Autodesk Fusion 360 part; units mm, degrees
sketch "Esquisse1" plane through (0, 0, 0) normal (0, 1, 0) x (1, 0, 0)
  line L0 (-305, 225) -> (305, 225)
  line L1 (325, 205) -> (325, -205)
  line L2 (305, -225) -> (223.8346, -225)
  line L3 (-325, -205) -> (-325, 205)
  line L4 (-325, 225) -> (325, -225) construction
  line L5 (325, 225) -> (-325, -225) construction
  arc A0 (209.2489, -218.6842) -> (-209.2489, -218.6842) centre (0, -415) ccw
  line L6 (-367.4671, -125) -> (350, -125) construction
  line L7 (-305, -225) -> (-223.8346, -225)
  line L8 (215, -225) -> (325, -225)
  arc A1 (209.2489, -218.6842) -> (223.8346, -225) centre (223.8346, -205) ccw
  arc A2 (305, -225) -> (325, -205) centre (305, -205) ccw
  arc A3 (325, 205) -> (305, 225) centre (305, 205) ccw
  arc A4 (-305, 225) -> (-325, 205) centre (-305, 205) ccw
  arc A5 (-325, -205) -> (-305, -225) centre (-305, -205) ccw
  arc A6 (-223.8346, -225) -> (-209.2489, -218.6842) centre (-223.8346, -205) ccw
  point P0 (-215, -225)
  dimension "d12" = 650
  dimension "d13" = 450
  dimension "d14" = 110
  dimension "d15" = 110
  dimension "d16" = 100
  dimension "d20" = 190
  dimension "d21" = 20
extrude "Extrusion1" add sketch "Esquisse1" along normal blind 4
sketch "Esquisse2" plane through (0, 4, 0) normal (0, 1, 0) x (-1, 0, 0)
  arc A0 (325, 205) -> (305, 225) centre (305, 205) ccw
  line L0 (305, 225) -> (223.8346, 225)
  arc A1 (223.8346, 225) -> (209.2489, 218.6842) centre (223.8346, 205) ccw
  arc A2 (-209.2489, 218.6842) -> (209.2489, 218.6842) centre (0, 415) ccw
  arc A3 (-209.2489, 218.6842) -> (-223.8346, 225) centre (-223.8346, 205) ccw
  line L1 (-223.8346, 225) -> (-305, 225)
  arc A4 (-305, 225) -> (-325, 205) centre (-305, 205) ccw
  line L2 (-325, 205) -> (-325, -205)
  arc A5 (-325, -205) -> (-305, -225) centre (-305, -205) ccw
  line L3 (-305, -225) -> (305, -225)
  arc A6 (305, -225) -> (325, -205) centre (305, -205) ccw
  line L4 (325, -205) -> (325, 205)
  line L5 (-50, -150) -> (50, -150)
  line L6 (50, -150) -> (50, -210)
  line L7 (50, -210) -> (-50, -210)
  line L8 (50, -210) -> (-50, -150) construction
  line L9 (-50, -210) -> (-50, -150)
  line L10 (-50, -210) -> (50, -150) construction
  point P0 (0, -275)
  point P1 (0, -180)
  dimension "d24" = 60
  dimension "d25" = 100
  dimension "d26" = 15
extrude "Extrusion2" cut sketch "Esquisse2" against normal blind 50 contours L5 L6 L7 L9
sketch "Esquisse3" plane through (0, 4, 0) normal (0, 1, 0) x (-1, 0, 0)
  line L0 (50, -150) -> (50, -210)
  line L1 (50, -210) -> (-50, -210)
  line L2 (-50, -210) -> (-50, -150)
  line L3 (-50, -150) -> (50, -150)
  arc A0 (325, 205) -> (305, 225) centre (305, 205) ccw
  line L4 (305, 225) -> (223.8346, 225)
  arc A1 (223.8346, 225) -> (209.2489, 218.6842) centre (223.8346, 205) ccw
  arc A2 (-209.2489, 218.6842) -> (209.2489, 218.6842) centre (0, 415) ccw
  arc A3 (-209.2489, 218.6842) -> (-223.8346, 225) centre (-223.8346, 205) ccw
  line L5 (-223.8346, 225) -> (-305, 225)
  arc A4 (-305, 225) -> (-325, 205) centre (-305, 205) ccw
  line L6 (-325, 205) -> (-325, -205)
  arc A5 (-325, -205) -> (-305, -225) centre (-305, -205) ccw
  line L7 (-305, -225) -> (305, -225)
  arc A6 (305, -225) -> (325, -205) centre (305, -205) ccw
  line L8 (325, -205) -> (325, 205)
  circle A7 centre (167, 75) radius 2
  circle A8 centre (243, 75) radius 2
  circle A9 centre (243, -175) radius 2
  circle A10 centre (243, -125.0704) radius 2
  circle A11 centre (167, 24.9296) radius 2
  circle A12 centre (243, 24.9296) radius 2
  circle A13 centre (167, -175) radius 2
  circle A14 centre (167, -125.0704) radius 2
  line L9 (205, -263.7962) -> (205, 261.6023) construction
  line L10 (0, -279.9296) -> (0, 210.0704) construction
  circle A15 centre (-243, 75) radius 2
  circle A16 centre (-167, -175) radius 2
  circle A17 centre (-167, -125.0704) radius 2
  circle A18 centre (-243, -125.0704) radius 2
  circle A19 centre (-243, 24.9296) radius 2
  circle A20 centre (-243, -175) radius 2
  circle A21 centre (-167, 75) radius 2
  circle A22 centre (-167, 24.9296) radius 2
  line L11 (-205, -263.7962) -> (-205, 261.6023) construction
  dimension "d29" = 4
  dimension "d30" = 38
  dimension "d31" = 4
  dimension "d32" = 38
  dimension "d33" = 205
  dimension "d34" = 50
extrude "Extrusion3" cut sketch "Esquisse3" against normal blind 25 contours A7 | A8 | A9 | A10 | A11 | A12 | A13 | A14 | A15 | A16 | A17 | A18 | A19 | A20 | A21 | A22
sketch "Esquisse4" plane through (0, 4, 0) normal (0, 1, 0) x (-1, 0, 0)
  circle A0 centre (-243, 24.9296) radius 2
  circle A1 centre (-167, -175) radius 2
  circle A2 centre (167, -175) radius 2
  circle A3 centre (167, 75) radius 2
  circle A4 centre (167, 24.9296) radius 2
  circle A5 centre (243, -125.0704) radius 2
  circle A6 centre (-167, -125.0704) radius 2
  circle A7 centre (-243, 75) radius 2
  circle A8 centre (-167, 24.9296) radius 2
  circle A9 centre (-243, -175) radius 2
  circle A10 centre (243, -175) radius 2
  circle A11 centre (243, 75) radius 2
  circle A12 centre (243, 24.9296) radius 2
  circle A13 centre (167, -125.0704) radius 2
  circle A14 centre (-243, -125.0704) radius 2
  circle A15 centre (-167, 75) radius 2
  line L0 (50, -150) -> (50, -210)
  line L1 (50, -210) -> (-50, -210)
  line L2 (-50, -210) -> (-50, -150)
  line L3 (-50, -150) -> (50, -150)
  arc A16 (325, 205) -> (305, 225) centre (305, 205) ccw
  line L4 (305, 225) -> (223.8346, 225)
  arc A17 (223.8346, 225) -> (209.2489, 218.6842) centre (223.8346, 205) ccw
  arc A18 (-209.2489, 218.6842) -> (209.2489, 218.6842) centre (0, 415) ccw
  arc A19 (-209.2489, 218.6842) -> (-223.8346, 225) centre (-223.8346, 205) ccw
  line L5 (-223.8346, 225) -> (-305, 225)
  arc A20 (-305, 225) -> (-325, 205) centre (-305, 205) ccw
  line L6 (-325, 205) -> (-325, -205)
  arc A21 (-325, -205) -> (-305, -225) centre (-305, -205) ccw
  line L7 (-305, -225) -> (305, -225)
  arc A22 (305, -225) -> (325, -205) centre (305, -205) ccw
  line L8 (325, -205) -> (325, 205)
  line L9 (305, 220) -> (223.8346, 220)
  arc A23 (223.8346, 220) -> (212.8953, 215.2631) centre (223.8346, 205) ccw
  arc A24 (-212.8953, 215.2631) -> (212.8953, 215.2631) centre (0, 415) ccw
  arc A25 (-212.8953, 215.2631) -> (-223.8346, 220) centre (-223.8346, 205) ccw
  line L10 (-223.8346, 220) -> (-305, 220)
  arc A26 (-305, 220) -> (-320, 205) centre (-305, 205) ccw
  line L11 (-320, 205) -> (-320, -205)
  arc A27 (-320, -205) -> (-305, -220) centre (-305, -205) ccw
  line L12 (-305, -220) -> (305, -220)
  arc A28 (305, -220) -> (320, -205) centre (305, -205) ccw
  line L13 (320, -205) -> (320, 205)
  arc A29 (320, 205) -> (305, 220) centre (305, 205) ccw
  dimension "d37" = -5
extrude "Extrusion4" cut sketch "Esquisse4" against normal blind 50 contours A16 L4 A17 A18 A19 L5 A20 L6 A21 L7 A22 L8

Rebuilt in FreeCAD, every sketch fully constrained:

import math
import FreeCAD as App
import Part
import Sketcher
from FreeCAD import Vector
Q = App.Units.Quantity

doc = App.newDocument("Part")
body = doc.addObject("PartDesign::Body", "Body")

# Sketch on XZ plane
sketch1 = doc.addObject("Sketcher::SketchObject", "Sketch")
body.addObject(sketch1)
sketch1.AttachmentSupport = (doc.XZ_Plane, [""])
sketch1.MapMode = "FlatFace"
sketch1.addGeometry([
    Part.LineSegment(Vector(305, -225, 0), Vector(-305, -225, 0)),  # 0
    Part.ArcOfCircle(Part.Circle(Vector(-305, -205, 0), Vector(0, 0, 1), 20), math.radians(180), math.radians(270)),  # 1
    Part.LineSegment(Vector(-325, -205, 0), Vector(-325, 205, 0)),  # 2
    Part.ArcOfCircle(Part.Circle(Vector(-305, 205, 0), Vector(0, 0, 1), 20), math.radians(90), math.radians(180)),  # 3
    Part.LineSegment(Vector(-305, 225, 0), Vector(-223.8346, 225, 0)),  # 4
    Part.ArcOfCircle(Part.Circle(Vector(-223.8346, 205, 0), Vector(0, 0, 1), 20), math.radians(43.173511), math.radians(90)),  # 5
    Part.ArcOfCircle(Part.Circle(Vector(0, 415, 0), Vector(0, 0, 1), 286.923327), math.radians(-136.826493), math.radians(-43.173507)),  # 6
    Part.ArcOfCircle(Part.Circle(Vector(223.8346, 205, 0), Vector(0, 0, 1), 19.999999), math.radians(90), math.radians(136.826489)),  # 7
    Part.LineSegment(Vector(223.8346, 225, 0), Vector(305, 225, 0)),  # 8
    Part.ArcOfCircle(Part.Circle(Vector(305, 205, 0), Vector(0, 0, 1), 20), math.radians(0), math.radians(90)),  # 9
    Part.LineSegment(Vector(325, 205, 0), Vector(325, -205, 0)),  # 10
    Part.ArcOfCircle(Part.Circle(Vector(305, -205, 0), Vector(0, 0, 1), 20), math.radians(-90), math.radians(0)),  # 11
], False)
sketch1.addConstraint([
    Sketcher.Constraint("Tangent", 0, 2, 1, 2),
    Sketcher.Constraint("Tangent", 1, 1, 2, 1),
    Sketcher.Constraint("Tangent", 2, 2, 3, 2),
    Sketcher.Constraint("Tangent", 3, 1, 4, 1),
    Sketcher.Constraint("Tangent", 4, 2, 5, 2),
    Sketcher.Constraint("Tangent", 5, 1, 6, 1),
    Sketcher.Constraint("Tangent", 6, 2, 7, 2),
    Sketcher.Constraint("Tangent", 7, 1, 8, 1),
    Sketcher.Constraint("Tangent", 8, 2, 9, 2),
    Sketcher.Constraint("Tangent", 9, 1, 10, 1),
    Sketcher.Constraint("Tangent", 10, 2, 11, 2),
    Sketcher.Constraint("Tangent", 11, 1, 0, 1),
    Sketcher.Constraint("Horizontal", 0),
    Sketcher.Constraint("Vertical", 2),
    Sketcher.Constraint("Horizontal", 4),
    Sketcher.Constraint("Horizontal", 8),
    Sketcher.Constraint("Vertical", 10),
    Sketcher.Constraint("Equal", 1, 3),
    Sketcher.Constraint("Equal", 3, 5),
    Sketcher.Constraint("Equal", 5, 7),
    Sketcher.Constraint("Equal", 7, 9),
    Sketcher.Constraint("Equal", 9, 11),
    Sketcher.Constraint("Symmetric", 1, 3, 9, 3, -1, 1),
    Sketcher.Constraint("Symmetric", 5, 3, 7, 3, -2),
    Sketcher.Constraint("Radius", 1, Q("20 mm")),
    Sketcher.Constraint("DistanceY", 3, 1, 6, 3, Q("190 mm")),
    Sketcher.Constraint("DistanceX", 0, 2, 0, 1, Q("610 mm")),
    Sketcher.Constraint("DistanceY", 2, 1, 2, 2, Q("410 mm")),
    Sketcher.Constraint("Radius", 6, Q("286.9233 mm")),
])
pad1 = doc.addObject("PartDesign::Pad", "Pad")
body.addObject(pad1)
pad1.Profile = sketch1
pad1.Length = 4
pad1.Reversed = True

# Sketch on XZ plane
sketch2 = doc.addObject("Sketcher::SketchObject", "Sketch001")
body.addObject(sketch2)
sketch2.AttachmentSupport = (doc.XZ_Plane, [""])
sketch2.MapMode = "FlatFace"
sketch2.AttachmentOffset = App.Placement(Vector(0, 0, -4), App.Rotation())
sketch2.addGeometry([
    Part.LineSegment(Vector(-50, -150, 0), Vector(50, -150, 0)),
    Part.LineSegment(Vector(50, -150, 0), Vector(50, -210, 0)),
    Part.LineSegment(Vector(50, -210, 0), Vector(-50, -210, 0)),
    Part.LineSegment(Vector(-50, -210, 0), Vector(-50, -150, 0)),
], False)
sketch2.addConstraint([
    Sketcher.Constraint("Coincident", 0, 2, 1, 1),
    Sketcher.Constraint("Coincident", 1, 2, 2, 1),
    Sketcher.Constraint("Coincident", 2, 2, 3, 1),
    Sketcher.Constraint("Coincident", 3, 2, 0, 1),
    Sketcher.Constraint("Horizontal", 0),
    Sketcher.Constraint("Vertical", 1),
    Sketcher.Constraint("Horizontal", 2),
    Sketcher.Constraint("Vertical", 3),
    Sketcher.Constraint("DistanceX", 0, 1, 0, 2, Q("100 mm")),
    Sketcher.Constraint("DistanceY", 1, 2, 1, 1, Q("60 mm")),
    Sketcher.Constraint("DistanceX", -1, 1, 0, 2, Q("50 mm")),
    Sketcher.Constraint("DistanceY", 0, 2, -1, 1, Q("150 mm")),
])
pocket1 = doc.addObject("PartDesign::Pocket", "Pocket")
body.addObject(pocket1)
pocket1.Profile = sketch2
pocket1.Length = 50
pocket1.Reversed = True

# Sketch on XZ plane
sketch3 = doc.addObject("Sketcher::SketchObject", "Sketch002")
body.addObject(sketch3)
sketch3.AttachmentSupport = (doc.XZ_Plane, [""])
sketch3.MapMode = "FlatFace"
sketch3.AttachmentOffset = App.Placement(Vector(0, 0, -4), App.Rotation())
sketch3.addGeometry([
    Part.Circle(Vector(-167, 75, 0), Vector(0, 0, 1), 2),  # 0
    Part.Circle(Vector(-243, 75, 0), Vector(0, 0, 1), 2),  # 1
    Part.Circle(Vector(-243, -175, 0), Vector(0, 0, 1), 2),  # 2
    Part.Circle(Vector(-243, -125.0704, 0), Vector(0, 0, 1), 2),  # 3
    Part.Circle(Vector(-167, 24.9296, 0), Vector(0, 0, 1), 2),  # 4
    Part.Circle(Vector(-243, 24.9296, 0), Vector(0, 0, 1), 2),  # 5
    Part.Circle(Vector(-167, -175, 0), Vector(0, 0, 1), 2),  # 6
    Part.Circle(Vector(-167, -125.0704, 0), Vector(0, 0, 1), 2),  # 7
    Part.Circle(Vector(243, 75, 0), Vector(0, 0, 1), 2),  # 8
    Part.Circle(Vector(167, -175, 0), Vector(0, 0, 1), 2),  # 9
    Part.Circle(Vector(167, -125.0704, 0), Vector(0, 0, 1), 2),  # 10
    Part.Circle(Vector(243, -125.0704, 0), Vector(0, 0, 1), 2),  # 11
    Part.Circle(Vector(243, 24.9296, 0), Vector(0, 0, 1), 2),  # 12
    Part.Circle(Vector(243, -175, 0), Vector(0, 0, 1), 2),  # 13
    Part.Circle(Vector(167, 75, 0), Vector(0, 0, 1), 2),  # 14
    Part.Circle(Vector(167, 24.9296, 0), Vector(0, 0, 1), 2),  # 15
], False)
sketch3.addConstraint([
    Sketcher.Constraint("Equal", 0, 1),
    Sketcher.Constraint("Equal", 1, 2),
    Sketcher.Constraint("Equal", 2, 3),
    Sketcher.Constraint("Equal", 3, 4),
    Sketcher.Constraint("Equal", 4, 5),
    Sketcher.Constraint("Equal", 5, 6),
    Sketcher.Constraint("Equal", 6, 7),
    Sketcher.Constraint("Equal", 7, 8),
    Sketcher.Constraint("Equal", 8, 9),
    Sketcher.Constraint("Equal", 9, 10),
    Sketcher.Constraint("Equal", 10, 11),
    Sketcher.Constraint("Equal", 11, 12),
    Sketcher.Constraint("Equal", 12, 13),
    Sketcher.Constraint("Equal", 13, 14),
    Sketcher.Constraint("Equal", 14, 15),
    Sketcher.Constraint("Symmetric", 1, 3, 8, 3, -2),
    Sketcher.Constraint("Symmetric", 6, 3, 9, 3, -2),
    Sketcher.Constraint("Symmetric", 7, 3, 10, 3, -2),
    Sketcher.Constraint("Symmetric", 3, 3, 11, 3, -2),
    Sketcher.Constraint("Symmetric", 5, 3, 12, 3, -2),
    Sketcher.Constraint("Symmetric", 2, 3, 13, 3, -2),
    Sketcher.Constraint("Symmetric", 0, 3, 14, 3, -2),
    Sketcher.Constraint("Symmetric", 4, 3, 15, 3, -2),
    Sketcher.Constraint("Horizontal", 0, 3, 1, 3),
    Sketcher.Constraint("Horizontal", 4, 3, 5, 3),
    Sketcher.Constraint("Horizontal", 2, 3, 6, 3),
    Sketcher.Constraint("Horizontal", 3, 3, 7, 3),
    Sketcher.Constraint("Vertical", 1, 3, 2, 3),
    Sketcher.Constraint("Vertical", 2, 3, 3, 3),
    Sketcher.Constraint("Vertical", 0, 3, 4, 3),
    Sketcher.Constraint("Vertical", 3, 3, 5, 3),
    Sketcher.Constraint("Vertical", 4, 3, 6, 3),
    Sketcher.Constraint("Vertical", 6, 3, 7, 3),
    Sketcher.Constraint("Diameter", 0, Q("4 mm")),
    Sketcher.Constraint("DistanceX", 0, 3, -1, 1, Q("167 mm")),
    Sketcher.Constraint("DistanceY", -1, 1, 0, 3, Q("75 mm")),
    Sketcher.Constraint("DistanceX", 1, 3, -1, 1, Q("243 mm")),
    Sketcher.Constraint("DistanceY", 2, 3, -1, 1, Q("175 mm")),
    Sketcher.Constraint("DistanceY", 3, 3, 4, 3, Q("150 mm")),
    Sketcher.Constraint("DistanceY", 3, 3, -1, 1, Q("125.0704 mm")),
])
pocket2 = doc.addObject("PartDesign::Pocket", "Pocket001")
body.addObject(pocket2)
pocket2.Profile = sketch3
pocket2.Length = 25
pocket2.Reversed = True

# Sketch on XZ plane
sketch4 = doc.addObject("Sketcher::SketchObject", "Sketch003")
body.addObject(sketch4)
sketch4.AttachmentSupport = (doc.XZ_Plane, [""])
sketch4.MapMode = "FlatFace"
sketch4.AttachmentOffset = App.Placement(Vector(0, 0, -4), App.Rotation())
sketch4.addGeometry([
    Part.LineSegment(Vector(-325, -205, 0), Vector(-325, 205, 0)),  # 0
    Part.ArcOfCircle(Part.Circle(Vector(-305, 205, 0), Vector(0, 0, 1), 20), math.radians(90), math.radians(180)),  # 1
    Part.LineSegment(Vector(-305, 225, 0), Vector(-223.8346, 225, 0)),  # 2
    Part.ArcOfCircle(Part.Circle(Vector(-223.8346, 205, 0), Vector(0, 0, 1), 20), math.radians(43.173511), math.radians(90)),  # 3
    Part.ArcOfCircle(Part.Circle(Vector(0, 415, 0), Vector(0, 0, 1), 286.923327), math.radians(-136.826493), math.radians(-43.173507)),  # 4
    Part.ArcOfCircle(Part.Circle(Vector(223.8346, 205, 0), Vector(0, 0, 1), 19.999999), math.radians(90), math.radians(136.826489)),  # 5
    Part.LineSegment(Vector(223.8346, 225, 0), Vector(305, 225, 0)),  # 6
    Part.ArcOfCircle(Part.Circle(Vector(305, 205, 0), Vector(0, 0, 1), 20), math.radians(0), math.radians(90)),  # 7
    Part.LineSegment(Vector(325, 205, 0), Vector(325, -205, 0)),  # 8
    Part.ArcOfCircle(Part.Circle(Vector(305, -205, 0), Vector(0, 0, 1), 20), math.radians(-90), math.radians(0)),  # 9
    Part.LineSegment(Vector(305, -225, 0), Vector(-305, -225, 0)),  # 10
    Part.ArcOfCircle(Part.Circle(Vector(-305, -205, 0), Vector(0, 0, 1), 20), math.radians(180), math.radians(270)),  # 11
    Part.LineSegment(Vector(-223.8346, 220, 0), Vector(-305, 220, 0)),  # 12
    Part.ArcOfCircle(Part.Circle(Vector(-305, 205, 0), Vector(0, 0, 1), 15), math.radians(90), math.radians(180)),  # 13
    Part.LineSegment(Vector(-320, 205, 0), Vector(-320, -205, 0)),  # 14
    Part.ArcOfCircle(Part.Circle(Vector(-305, -205, 0), Vector(0, 0, 1), 15), math.radians(180), math.radians(270)),  # 15
    Part.LineSegment(Vector(-305, -220, 0), Vector(305, -220, 0)),  # 16
    Part.ArcOfCircle(Part.Circle(Vector(305, -205, 0), Vector(0, 0, 1), 15), math.radians(-90), math.radians(0)),  # 17
    Part.LineSegment(Vector(320, -205, 0), Vector(320, 205, 0)),  # 18
    Part.ArcOfCircle(Part.Circle(Vector(305, 205, 0), Vector(0, 0, 1), 15), math.radians(0), math.radians(90)),  # 19
    Part.LineSegment(Vector(305, 220, 0), Vector(223.8346, 220, 0)),  # 20
    Part.ArcOfCircle(Part.Circle(Vector(223.8346, 205, 0), Vector(0, 0, 1), 14.999984), math.radians(90), math.radians(136.826693)),  # 21
    Part.ArcOfCircle(Part.Circle(Vector(0, 415, 0), Vector(0, 0, 1), 291.923343), math.radians(-136.826482), math.radians(-43.173518)),  # 22
    Part.ArcOfCircle(Part.Circle(Vector(-223.8346, 205, 0), Vector(0, 0, 1), 15), math.radians(43.173307), math.radians(90)),  # 23
], False)
sketch4.addConstraint([
    Sketcher.Constraint("Tangent", 0, 2, 1, 2),
    Sketcher.Constraint("Tangent", 1, 1, 2, 1),
    Sketcher.Constraint("Tangent", 2, 2, 3, 2),
    Sketcher.Constraint("Tangent", 3, 1, 4, 1),
    Sketcher.Constraint("Tangent", 4, 2, 5, 2),
    Sketcher.Constraint("Tangent", 5, 1, 6, 1),
    Sketcher.Constraint("Tangent", 6, 2, 7, 2),
    Sketcher.Constraint("Tangent", 7, 1, 8, 1),
    Sketcher.Constraint("Tangent", 8, 2, 9, 2),
    Sketcher.Constraint("Tangent", 9, 1, 10, 1),
    Sketcher.Constraint("Tangent", 10, 2, 11, 2),
    Sketcher.Constraint("Tangent", 11, 1, 0, 1),
    Sketcher.Constraint("Tangent", 12, 2, 13, 1),
    Sketcher.Constraint("Tangent", 13, 2, 14, 1),
    Sketcher.Constraint("Tangent", 14, 2, 15, 1),
    Sketcher.Constraint("Tangent", 15, 2, 16, 1),
    Sketcher.Constraint("Tangent", 16, 2, 17, 1),
    Sketcher.Constraint("Tangent", 17, 2, 18, 1),
    Sketcher.Constraint("Tangent", 18, 2, 19, 1),
    Sketcher.Constraint("Tangent", 19, 2, 20, 1),
    Sketcher.Constraint("Tangent", 20, 2, 21, 1),
    Sketcher.Constraint("Tangent", 21, 2, 22, 2),
    Sketcher.Constraint("Tangent", 22, 1, 23, 1),
    Sketcher.Constraint("Tangent", 23, 2, 12, 1),
    Sketcher.Constraint("Vertical", 0),
    Sketcher.Constraint("Horizontal", 2),
    Sketcher.Constraint("Horizontal", 6),
    Sketcher.Constraint("Vertical", 8),
    Sketcher.Constraint("Horizontal", 10),
    Sketcher.Constraint("Horizontal", 12),
    Sketcher.Constraint("Vertical", 14),
    Sketcher.Constraint("Horizontal", 16),
    Sketcher.Constraint("Vertical", 18),
    Sketcher.Constraint("Horizontal", 20),
    Sketcher.Constraint("Coincident", 13, 3, 1, 3),
    Sketcher.Constraint("Coincident", 15, 3, 11, 3),
    Sketcher.Constraint("Coincident", 17, 3, 9, 3),
    Sketcher.Constraint("Coincident", 19, 3, 7, 3),
    Sketcher.Constraint("Coincident", 21, 3, 5, 3),
    Sketcher.Constraint("Coincident", 22, 3, 4, 3),
    Sketcher.Constraint("Equal", 1, 3),
    Sketcher.Constraint("Equal", 3, 5),
    Sketcher.Constraint("Equal", 5, 7),
    Sketcher.Constraint("Equal", 7, 9),
    Sketcher.Constraint("Equal", 9, 11),
    Sketcher.Constraint("Equal", 21, 23),
    Sketcher.Constraint("Symmetric", 1, 3, 9, 3, -1, 1),
    Sketcher.Constraint("Symmetric", 3, 3, 5, 3, -2),
    Sketcher.Constraint("Radius", 1, Q("20 mm")),
    Sketcher.Constraint("Radius", 13, Q("15 mm")),
    Sketcher.Constraint("DistanceX", 10, 2, 10, 1, Q("610 mm")),
    Sketcher.Constraint("DistanceY", 0, 1, 0, 2, Q("410 mm")),
    Sketcher.Constraint("DistanceY", -1, 1, 4, 3, Q("415 mm")),
    Sketcher.Constraint("Radius", 4, Q("286.9233 mm")),
])
pocket3 = doc.addObject("PartDesign::Pocket", "Pocket002")
body.addObject(pocket3)
pocket3.Profile = sketch4
pocket3.Length = 50
pocket3.Reversed = True

doc.recompute()
